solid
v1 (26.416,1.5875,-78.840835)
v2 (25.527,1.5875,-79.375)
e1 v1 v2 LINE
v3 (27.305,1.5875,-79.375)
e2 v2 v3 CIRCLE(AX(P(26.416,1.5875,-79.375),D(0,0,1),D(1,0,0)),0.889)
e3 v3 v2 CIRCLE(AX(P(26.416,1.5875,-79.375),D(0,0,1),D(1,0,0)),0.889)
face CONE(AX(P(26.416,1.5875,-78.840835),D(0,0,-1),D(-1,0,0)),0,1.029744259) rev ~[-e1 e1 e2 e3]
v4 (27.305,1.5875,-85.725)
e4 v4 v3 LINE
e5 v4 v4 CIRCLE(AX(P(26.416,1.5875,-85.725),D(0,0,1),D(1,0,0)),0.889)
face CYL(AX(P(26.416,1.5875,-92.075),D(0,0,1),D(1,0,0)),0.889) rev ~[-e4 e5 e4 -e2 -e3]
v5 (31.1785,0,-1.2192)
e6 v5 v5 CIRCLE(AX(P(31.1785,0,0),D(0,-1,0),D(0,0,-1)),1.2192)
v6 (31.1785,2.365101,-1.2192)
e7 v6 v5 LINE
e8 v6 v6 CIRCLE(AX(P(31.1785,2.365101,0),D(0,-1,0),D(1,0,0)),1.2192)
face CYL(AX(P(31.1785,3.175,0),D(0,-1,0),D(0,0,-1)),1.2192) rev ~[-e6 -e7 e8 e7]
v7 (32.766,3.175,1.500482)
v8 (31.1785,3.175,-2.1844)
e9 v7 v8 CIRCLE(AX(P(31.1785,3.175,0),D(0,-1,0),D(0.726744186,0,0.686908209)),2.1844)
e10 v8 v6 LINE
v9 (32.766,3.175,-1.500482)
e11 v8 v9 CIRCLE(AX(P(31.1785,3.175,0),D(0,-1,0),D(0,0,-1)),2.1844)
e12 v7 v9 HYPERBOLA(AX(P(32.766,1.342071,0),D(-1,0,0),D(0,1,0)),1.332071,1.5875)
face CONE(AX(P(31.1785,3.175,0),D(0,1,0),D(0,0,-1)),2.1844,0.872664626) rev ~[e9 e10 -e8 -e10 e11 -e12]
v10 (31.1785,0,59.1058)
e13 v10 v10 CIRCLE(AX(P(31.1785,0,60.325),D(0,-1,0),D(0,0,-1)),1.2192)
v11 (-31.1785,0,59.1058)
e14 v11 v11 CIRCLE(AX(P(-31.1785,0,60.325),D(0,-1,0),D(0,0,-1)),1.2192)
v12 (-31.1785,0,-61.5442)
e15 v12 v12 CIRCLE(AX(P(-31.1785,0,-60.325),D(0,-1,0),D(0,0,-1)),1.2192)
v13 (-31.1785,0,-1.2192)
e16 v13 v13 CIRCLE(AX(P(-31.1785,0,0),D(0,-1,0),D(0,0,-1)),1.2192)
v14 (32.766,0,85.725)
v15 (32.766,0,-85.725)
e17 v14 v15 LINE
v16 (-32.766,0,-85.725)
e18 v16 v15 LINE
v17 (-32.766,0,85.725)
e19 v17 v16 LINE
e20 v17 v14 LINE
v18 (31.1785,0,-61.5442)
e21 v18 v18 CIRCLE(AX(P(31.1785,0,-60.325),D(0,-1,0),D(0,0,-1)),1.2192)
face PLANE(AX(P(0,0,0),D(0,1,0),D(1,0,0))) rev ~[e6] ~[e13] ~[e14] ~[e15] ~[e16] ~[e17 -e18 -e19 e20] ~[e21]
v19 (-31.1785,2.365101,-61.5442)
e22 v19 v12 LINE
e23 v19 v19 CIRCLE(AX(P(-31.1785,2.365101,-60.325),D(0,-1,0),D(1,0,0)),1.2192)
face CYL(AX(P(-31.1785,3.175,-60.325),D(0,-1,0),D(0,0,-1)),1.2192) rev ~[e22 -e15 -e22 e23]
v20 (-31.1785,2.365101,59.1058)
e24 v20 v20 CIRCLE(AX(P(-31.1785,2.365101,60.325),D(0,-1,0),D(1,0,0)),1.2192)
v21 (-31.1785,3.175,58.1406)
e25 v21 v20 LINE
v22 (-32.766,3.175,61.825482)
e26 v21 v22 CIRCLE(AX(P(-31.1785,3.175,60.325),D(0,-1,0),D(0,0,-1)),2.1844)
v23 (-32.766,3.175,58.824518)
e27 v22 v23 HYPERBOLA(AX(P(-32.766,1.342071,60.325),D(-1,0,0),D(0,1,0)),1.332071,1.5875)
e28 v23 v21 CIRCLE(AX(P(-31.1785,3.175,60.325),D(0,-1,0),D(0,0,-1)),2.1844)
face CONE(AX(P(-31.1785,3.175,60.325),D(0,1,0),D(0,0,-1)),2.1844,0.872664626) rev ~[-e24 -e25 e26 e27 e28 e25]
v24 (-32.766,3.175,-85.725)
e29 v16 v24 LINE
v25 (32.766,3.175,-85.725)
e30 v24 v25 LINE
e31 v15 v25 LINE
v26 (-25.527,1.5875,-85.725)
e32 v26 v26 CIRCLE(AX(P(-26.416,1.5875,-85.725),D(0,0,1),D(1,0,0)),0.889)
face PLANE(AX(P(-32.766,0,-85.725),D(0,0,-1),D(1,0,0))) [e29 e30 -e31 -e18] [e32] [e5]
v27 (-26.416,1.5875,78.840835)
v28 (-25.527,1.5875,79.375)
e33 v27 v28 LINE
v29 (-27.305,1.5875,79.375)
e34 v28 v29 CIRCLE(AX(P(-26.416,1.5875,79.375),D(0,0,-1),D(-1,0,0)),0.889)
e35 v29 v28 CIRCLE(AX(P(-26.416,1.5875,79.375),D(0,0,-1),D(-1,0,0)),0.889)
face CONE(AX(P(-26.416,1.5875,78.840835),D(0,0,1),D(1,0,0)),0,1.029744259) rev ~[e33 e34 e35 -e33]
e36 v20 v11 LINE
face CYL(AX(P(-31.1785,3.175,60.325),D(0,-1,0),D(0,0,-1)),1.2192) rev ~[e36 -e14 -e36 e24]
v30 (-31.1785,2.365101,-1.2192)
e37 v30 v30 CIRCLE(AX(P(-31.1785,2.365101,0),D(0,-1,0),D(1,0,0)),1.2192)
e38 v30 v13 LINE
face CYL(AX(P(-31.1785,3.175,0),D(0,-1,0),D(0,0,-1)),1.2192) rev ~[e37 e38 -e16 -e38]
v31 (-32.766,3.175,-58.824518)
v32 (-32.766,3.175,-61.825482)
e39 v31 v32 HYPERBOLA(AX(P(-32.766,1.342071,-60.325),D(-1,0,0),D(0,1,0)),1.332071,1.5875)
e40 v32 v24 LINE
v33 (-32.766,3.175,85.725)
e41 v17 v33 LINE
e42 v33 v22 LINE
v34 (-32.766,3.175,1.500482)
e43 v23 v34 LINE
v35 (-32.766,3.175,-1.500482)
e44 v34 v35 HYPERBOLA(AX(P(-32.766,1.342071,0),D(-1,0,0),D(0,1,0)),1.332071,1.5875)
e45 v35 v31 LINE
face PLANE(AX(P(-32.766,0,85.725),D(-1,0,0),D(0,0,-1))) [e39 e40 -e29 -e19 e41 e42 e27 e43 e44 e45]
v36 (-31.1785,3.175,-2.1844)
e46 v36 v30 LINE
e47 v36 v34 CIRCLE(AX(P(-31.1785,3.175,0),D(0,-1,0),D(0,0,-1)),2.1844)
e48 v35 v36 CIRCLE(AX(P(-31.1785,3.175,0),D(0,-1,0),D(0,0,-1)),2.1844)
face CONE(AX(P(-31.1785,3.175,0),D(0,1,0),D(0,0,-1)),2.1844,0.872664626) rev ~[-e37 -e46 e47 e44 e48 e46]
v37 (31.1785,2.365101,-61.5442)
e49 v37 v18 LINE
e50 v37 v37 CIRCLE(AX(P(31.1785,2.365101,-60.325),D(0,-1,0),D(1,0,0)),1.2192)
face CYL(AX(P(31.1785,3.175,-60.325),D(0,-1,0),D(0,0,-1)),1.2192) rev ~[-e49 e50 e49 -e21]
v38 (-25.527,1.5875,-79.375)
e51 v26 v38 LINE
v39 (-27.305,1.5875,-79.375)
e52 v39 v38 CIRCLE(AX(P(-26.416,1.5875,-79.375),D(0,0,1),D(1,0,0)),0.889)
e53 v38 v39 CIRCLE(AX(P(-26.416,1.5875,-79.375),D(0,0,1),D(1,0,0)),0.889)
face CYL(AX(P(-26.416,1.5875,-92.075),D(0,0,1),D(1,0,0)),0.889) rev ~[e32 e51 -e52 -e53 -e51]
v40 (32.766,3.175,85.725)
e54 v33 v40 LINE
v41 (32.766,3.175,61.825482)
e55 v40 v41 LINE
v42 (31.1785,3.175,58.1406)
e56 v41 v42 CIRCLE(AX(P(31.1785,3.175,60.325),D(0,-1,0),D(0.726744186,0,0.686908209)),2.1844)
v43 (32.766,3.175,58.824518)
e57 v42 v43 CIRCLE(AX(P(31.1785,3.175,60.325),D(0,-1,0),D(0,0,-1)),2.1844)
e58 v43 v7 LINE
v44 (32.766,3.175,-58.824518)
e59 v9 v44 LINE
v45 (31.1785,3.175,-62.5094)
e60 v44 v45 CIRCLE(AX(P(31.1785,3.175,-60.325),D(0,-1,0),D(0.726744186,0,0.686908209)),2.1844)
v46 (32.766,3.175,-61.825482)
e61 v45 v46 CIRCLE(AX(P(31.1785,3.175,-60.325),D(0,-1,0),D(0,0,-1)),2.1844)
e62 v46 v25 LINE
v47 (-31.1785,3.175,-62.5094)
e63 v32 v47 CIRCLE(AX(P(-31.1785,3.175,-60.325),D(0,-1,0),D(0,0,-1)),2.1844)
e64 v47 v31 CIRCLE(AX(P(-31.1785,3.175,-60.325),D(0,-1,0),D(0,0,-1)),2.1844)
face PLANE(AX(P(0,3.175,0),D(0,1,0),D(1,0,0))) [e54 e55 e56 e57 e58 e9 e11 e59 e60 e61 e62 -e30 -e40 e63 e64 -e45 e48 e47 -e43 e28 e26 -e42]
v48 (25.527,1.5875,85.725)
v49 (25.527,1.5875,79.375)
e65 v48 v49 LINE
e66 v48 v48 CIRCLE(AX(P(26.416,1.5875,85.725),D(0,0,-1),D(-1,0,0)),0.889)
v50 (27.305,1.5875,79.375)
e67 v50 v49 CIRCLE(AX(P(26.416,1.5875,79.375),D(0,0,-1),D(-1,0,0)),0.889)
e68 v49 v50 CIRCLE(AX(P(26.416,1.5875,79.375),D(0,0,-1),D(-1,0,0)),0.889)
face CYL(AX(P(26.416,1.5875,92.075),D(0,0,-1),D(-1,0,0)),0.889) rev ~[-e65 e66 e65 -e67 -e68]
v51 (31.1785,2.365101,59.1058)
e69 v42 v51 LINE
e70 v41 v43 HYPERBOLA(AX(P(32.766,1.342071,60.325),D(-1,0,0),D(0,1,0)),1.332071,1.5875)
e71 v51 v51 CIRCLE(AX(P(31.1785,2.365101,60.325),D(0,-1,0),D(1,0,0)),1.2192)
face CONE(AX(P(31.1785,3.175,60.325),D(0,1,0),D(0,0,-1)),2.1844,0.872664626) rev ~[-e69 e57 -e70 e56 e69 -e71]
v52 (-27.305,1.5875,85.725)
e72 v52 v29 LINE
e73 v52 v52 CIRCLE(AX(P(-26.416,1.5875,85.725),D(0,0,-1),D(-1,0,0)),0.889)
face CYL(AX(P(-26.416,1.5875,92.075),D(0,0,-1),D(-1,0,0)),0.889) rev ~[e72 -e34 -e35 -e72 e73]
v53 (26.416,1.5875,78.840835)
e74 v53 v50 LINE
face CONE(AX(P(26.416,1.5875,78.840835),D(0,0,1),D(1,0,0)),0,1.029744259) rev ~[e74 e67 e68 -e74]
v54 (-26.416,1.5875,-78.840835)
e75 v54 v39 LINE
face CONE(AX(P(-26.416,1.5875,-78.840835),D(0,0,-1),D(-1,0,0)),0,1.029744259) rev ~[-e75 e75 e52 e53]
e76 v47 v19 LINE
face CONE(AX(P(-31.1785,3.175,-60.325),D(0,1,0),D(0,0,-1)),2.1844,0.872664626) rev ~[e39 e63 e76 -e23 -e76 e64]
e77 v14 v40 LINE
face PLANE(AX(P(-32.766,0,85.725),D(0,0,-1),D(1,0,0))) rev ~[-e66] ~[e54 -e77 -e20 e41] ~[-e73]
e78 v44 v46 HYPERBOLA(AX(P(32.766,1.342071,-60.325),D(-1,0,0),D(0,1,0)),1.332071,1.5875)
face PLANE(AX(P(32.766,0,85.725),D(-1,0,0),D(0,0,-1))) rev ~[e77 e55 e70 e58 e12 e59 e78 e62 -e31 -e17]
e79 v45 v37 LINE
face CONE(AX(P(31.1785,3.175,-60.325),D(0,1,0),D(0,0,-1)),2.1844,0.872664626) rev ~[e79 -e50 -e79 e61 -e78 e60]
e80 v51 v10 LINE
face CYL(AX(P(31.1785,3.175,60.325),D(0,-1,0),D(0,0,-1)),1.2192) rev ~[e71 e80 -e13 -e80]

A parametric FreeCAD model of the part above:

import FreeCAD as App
import Part
import Sketcher
Q = App.Units.Quantity


def add_polygon(sketch, points):
    """Adds a closed chain of lines whose ends are joined by coincident constraints."""
    first, n = sketch.GeometryCount, len(points)
    for a, b in zip(points, points[1:] + points[:1]):
        sketch.addGeometry(Part.LineSegment(App.Vector(*a, 0), App.Vector(*b, 0)), False)
    for i in range(n):
        sketch.addConstraint(Sketcher.Constraint("Coincident", first + i, 2, first + (i + 1) % n, 1))

doc = App.newDocument("Part")
body = doc.addObject("PartDesign::Body", "Body")

sketch1 = body.newObject("Sketcher::SketchObject", "Sketch")
sketch1.AttachmentSupport = (doc.getObject("XZ_Plane"), [""])
sketch1.MapMode = "FlatFace"
add_polygon(sketch1, [(-33, -86), (-33, 86), (33, 86), (33, -86)])
sketch1.addConstraint([
    Sketcher.Constraint("Vertical", 0),
    Sketcher.Constraint("Horizontal", 1),
    Sketcher.Constraint("Vertical", 2),
    Sketcher.Constraint("Horizontal", 3),
    Sketcher.Constraint("Symmetric", 0, 2, 2, 2, -1, 1),
    Sketcher.Constraint("DistanceX", 1, 1, 1, 2, Q("2.58 in")),
    Sketcher.Constraint("DistanceY", 0, 1, 0, 2, Q("6.75 in")),
])
pad1 = body.newObject("PartDesign::Pad", "Pad")
pad1.Profile = sketch1
pad1.Length = Q("0.125 in")
pad1.Reversed = True

sketch2 = body.newObject("Sketcher::SketchObject", "Sketch001")
sketch2.AttachmentSupport = (doc.getObject("XY_Plane"), [""])
sketch2.MapMode = "FlatFace"
sketch2.AttachmentOffset = App.Placement(App.Vector(0, 0, 3.375 * 25.4), App.Rotation())
sketch2.addGeometry([
    Part.Circle(App.Vector(-26.4, 1.6, 0), App.Vector(0, 0, 1), 0.9),
    Part.Circle(App.Vector(26.4, 1.6, 0), App.Vector(0, 0, 1), 0.9),
], False)
sketch2.addConstraint([
    Sketcher.Constraint("Equal", 0, 1),
    Sketcher.Constraint("Symmetric", 0, 3, 1, 3, -2),
    Sketcher.Constraint("Diameter", 0, Q("0.07 in")),
    Sketcher.Constraint("DistanceX", 0, 3, -1, 1, Q("1.04 in")),
    Sketcher.Constraint("DistanceY", -1, 1, 0, 3, Q("0.0625 in")),
])
doc.recompute()
hole = body.newObject("PartDesign::Hole", "Hole")
hole.Profile = sketch2
hole.ThreadType = "None"
hole.Diameter = Q("0.07 in")
hole.DepthType = "Dimension"
hole.Depth = Q("0.25 in")
hole.DrillPoint = "Angled"
hole.DrillPointAngle = 118

sketch3 = body.newObject("Sketcher::SketchObject", "Sketch002")
sketch3.AttachmentSupport = (doc.getObject("XY_Plane"), [""])
sketch3.MapMode = "FlatFace"
sketch3.AttachmentOffset = App.Placement(App.Vector(0, 0, -3.375 * 25.4), App.Rotation())
sketch3.addGeometry([
    Part.Circle(App.Vector(26.4, 1.6, 0), App.Vector(0, 0, 1), 0.9),
    Part.Circle(App.Vector(-26.4, 1.6, 0), App.Vector(0, 0, 1), 0.9),
], False)
sketch3.addConstraint([
    Sketcher.Constraint("Equal", 0, 1),
    Sketcher.Constraint("Symmetric", 0, 3, 1, 3, -2),
    Sketcher.Constraint("Diameter", 0, Q("0.07 in")),
    Sketcher.Constraint("DistanceX", -1, 1, 0, 3, Q("1.04 in")),
    Sketcher.Constraint("DistanceY", -1, 1, 0, 3, Q("0.0625 in")),
])
doc.recompute()
hole2 = body.newObject("PartDesign::Hole", "Hole001")
hole2.Profile = sketch3
hole2.ThreadType = "None"
hole2.Diameter = Q("0.07 in")
hole2.DepthType = "Dimension"
hole2.Depth = Q("0.25 in")
hole2.DrillPoint = "Angled"
hole2.DrillPointAngle = 118
hole2.Reversed = True

sketch4 = body.newObject("Sketcher::SketchObject", "Sketch003")
sketch4.AttachmentSupport = (doc.getObject("XZ_Plane"), [""])
sketch4.MapMode = "FlatFace"
sketch4.AttachmentOffset = App.Placement(App.Vector(0, 0, -0.125 * 25.4), App.Rotation())
sketch4.addGeometry([
    Part.Circle(App.Vector(-31.2, -60.3, 0), App.Vector(0, 0, 1), 1.2),
    Part.Circle(App.Vector(-31.2, 0, 0), App.Vector(0, 0, 1), 1.2),
    Part.Circle(App.Vector(-31.2, 60.3, 0), App.Vector(0, 0, 1), 1.2),
    Part.Circle(App.Vector(31.2, 60.3, 0), App.Vector(0, 0, 1), 1.2),
    Part.Circle(App.Vector(31.2, 0, 0), App.Vector(0, 0, 1), 1.2),
    Part.Circle(App.Vector(31.2, -60.3, 0), App.Vector(0, 0, 1), 1.2),
], False)
sketch4.addConstraint([
    Sketcher.Constraint("Equal", 0, 1),
    Sketcher.Constraint("Equal", 1, 2),
    Sketcher.Constraint("Equal", 2, 3),
    Sketcher.Constraint("Equal", 3, 4),
    Sketcher.Constraint("Equal", 4, 5),
    Sketcher.Constraint("Symmetric", 0, 3, 3, 3, -1, 1),
    Sketcher.Constraint("Symmetric", 1, 3, 4, 3, -1, 1),
    Sketcher.Constraint("Symmetric", 2, 3, 5, 3, -1, 1),
    Sketcher.Constraint("Symmetric", 2, 3, 3, 3, -2),
    Sketcher.Constraint("PointOnObject", 1, 3, -1),
    Sketcher.Constraint("Vertical", 0, 3, 1, 3),
    Sketcher.Constraint("Diameter", 0, Q("0.096 in")),
    Sketcher.Constraint("DistanceY", 0, 3, 2, 3, Q("4.75 in")),
    Sketcher.Constraint("DistanceX", 2, 3, 3, 3, Q("2.455 in")),
])
doc.recompute()
hole3 = body.newObject("PartDesign::Hole", "Hole002")
hole3.Profile = sketch4
hole3.ThreadType = "None"
hole3.Diameter = Q("0.096 in")
hole3.DepthType = "ThroughAll"
hole3.HoleCutType = "Countersink"
hole3.HoleCutDiameter = Q("0.172 in")
hole3.HoleCutCountersinkAngle = 100
hole3.Reversed = True

doc.recompute()
